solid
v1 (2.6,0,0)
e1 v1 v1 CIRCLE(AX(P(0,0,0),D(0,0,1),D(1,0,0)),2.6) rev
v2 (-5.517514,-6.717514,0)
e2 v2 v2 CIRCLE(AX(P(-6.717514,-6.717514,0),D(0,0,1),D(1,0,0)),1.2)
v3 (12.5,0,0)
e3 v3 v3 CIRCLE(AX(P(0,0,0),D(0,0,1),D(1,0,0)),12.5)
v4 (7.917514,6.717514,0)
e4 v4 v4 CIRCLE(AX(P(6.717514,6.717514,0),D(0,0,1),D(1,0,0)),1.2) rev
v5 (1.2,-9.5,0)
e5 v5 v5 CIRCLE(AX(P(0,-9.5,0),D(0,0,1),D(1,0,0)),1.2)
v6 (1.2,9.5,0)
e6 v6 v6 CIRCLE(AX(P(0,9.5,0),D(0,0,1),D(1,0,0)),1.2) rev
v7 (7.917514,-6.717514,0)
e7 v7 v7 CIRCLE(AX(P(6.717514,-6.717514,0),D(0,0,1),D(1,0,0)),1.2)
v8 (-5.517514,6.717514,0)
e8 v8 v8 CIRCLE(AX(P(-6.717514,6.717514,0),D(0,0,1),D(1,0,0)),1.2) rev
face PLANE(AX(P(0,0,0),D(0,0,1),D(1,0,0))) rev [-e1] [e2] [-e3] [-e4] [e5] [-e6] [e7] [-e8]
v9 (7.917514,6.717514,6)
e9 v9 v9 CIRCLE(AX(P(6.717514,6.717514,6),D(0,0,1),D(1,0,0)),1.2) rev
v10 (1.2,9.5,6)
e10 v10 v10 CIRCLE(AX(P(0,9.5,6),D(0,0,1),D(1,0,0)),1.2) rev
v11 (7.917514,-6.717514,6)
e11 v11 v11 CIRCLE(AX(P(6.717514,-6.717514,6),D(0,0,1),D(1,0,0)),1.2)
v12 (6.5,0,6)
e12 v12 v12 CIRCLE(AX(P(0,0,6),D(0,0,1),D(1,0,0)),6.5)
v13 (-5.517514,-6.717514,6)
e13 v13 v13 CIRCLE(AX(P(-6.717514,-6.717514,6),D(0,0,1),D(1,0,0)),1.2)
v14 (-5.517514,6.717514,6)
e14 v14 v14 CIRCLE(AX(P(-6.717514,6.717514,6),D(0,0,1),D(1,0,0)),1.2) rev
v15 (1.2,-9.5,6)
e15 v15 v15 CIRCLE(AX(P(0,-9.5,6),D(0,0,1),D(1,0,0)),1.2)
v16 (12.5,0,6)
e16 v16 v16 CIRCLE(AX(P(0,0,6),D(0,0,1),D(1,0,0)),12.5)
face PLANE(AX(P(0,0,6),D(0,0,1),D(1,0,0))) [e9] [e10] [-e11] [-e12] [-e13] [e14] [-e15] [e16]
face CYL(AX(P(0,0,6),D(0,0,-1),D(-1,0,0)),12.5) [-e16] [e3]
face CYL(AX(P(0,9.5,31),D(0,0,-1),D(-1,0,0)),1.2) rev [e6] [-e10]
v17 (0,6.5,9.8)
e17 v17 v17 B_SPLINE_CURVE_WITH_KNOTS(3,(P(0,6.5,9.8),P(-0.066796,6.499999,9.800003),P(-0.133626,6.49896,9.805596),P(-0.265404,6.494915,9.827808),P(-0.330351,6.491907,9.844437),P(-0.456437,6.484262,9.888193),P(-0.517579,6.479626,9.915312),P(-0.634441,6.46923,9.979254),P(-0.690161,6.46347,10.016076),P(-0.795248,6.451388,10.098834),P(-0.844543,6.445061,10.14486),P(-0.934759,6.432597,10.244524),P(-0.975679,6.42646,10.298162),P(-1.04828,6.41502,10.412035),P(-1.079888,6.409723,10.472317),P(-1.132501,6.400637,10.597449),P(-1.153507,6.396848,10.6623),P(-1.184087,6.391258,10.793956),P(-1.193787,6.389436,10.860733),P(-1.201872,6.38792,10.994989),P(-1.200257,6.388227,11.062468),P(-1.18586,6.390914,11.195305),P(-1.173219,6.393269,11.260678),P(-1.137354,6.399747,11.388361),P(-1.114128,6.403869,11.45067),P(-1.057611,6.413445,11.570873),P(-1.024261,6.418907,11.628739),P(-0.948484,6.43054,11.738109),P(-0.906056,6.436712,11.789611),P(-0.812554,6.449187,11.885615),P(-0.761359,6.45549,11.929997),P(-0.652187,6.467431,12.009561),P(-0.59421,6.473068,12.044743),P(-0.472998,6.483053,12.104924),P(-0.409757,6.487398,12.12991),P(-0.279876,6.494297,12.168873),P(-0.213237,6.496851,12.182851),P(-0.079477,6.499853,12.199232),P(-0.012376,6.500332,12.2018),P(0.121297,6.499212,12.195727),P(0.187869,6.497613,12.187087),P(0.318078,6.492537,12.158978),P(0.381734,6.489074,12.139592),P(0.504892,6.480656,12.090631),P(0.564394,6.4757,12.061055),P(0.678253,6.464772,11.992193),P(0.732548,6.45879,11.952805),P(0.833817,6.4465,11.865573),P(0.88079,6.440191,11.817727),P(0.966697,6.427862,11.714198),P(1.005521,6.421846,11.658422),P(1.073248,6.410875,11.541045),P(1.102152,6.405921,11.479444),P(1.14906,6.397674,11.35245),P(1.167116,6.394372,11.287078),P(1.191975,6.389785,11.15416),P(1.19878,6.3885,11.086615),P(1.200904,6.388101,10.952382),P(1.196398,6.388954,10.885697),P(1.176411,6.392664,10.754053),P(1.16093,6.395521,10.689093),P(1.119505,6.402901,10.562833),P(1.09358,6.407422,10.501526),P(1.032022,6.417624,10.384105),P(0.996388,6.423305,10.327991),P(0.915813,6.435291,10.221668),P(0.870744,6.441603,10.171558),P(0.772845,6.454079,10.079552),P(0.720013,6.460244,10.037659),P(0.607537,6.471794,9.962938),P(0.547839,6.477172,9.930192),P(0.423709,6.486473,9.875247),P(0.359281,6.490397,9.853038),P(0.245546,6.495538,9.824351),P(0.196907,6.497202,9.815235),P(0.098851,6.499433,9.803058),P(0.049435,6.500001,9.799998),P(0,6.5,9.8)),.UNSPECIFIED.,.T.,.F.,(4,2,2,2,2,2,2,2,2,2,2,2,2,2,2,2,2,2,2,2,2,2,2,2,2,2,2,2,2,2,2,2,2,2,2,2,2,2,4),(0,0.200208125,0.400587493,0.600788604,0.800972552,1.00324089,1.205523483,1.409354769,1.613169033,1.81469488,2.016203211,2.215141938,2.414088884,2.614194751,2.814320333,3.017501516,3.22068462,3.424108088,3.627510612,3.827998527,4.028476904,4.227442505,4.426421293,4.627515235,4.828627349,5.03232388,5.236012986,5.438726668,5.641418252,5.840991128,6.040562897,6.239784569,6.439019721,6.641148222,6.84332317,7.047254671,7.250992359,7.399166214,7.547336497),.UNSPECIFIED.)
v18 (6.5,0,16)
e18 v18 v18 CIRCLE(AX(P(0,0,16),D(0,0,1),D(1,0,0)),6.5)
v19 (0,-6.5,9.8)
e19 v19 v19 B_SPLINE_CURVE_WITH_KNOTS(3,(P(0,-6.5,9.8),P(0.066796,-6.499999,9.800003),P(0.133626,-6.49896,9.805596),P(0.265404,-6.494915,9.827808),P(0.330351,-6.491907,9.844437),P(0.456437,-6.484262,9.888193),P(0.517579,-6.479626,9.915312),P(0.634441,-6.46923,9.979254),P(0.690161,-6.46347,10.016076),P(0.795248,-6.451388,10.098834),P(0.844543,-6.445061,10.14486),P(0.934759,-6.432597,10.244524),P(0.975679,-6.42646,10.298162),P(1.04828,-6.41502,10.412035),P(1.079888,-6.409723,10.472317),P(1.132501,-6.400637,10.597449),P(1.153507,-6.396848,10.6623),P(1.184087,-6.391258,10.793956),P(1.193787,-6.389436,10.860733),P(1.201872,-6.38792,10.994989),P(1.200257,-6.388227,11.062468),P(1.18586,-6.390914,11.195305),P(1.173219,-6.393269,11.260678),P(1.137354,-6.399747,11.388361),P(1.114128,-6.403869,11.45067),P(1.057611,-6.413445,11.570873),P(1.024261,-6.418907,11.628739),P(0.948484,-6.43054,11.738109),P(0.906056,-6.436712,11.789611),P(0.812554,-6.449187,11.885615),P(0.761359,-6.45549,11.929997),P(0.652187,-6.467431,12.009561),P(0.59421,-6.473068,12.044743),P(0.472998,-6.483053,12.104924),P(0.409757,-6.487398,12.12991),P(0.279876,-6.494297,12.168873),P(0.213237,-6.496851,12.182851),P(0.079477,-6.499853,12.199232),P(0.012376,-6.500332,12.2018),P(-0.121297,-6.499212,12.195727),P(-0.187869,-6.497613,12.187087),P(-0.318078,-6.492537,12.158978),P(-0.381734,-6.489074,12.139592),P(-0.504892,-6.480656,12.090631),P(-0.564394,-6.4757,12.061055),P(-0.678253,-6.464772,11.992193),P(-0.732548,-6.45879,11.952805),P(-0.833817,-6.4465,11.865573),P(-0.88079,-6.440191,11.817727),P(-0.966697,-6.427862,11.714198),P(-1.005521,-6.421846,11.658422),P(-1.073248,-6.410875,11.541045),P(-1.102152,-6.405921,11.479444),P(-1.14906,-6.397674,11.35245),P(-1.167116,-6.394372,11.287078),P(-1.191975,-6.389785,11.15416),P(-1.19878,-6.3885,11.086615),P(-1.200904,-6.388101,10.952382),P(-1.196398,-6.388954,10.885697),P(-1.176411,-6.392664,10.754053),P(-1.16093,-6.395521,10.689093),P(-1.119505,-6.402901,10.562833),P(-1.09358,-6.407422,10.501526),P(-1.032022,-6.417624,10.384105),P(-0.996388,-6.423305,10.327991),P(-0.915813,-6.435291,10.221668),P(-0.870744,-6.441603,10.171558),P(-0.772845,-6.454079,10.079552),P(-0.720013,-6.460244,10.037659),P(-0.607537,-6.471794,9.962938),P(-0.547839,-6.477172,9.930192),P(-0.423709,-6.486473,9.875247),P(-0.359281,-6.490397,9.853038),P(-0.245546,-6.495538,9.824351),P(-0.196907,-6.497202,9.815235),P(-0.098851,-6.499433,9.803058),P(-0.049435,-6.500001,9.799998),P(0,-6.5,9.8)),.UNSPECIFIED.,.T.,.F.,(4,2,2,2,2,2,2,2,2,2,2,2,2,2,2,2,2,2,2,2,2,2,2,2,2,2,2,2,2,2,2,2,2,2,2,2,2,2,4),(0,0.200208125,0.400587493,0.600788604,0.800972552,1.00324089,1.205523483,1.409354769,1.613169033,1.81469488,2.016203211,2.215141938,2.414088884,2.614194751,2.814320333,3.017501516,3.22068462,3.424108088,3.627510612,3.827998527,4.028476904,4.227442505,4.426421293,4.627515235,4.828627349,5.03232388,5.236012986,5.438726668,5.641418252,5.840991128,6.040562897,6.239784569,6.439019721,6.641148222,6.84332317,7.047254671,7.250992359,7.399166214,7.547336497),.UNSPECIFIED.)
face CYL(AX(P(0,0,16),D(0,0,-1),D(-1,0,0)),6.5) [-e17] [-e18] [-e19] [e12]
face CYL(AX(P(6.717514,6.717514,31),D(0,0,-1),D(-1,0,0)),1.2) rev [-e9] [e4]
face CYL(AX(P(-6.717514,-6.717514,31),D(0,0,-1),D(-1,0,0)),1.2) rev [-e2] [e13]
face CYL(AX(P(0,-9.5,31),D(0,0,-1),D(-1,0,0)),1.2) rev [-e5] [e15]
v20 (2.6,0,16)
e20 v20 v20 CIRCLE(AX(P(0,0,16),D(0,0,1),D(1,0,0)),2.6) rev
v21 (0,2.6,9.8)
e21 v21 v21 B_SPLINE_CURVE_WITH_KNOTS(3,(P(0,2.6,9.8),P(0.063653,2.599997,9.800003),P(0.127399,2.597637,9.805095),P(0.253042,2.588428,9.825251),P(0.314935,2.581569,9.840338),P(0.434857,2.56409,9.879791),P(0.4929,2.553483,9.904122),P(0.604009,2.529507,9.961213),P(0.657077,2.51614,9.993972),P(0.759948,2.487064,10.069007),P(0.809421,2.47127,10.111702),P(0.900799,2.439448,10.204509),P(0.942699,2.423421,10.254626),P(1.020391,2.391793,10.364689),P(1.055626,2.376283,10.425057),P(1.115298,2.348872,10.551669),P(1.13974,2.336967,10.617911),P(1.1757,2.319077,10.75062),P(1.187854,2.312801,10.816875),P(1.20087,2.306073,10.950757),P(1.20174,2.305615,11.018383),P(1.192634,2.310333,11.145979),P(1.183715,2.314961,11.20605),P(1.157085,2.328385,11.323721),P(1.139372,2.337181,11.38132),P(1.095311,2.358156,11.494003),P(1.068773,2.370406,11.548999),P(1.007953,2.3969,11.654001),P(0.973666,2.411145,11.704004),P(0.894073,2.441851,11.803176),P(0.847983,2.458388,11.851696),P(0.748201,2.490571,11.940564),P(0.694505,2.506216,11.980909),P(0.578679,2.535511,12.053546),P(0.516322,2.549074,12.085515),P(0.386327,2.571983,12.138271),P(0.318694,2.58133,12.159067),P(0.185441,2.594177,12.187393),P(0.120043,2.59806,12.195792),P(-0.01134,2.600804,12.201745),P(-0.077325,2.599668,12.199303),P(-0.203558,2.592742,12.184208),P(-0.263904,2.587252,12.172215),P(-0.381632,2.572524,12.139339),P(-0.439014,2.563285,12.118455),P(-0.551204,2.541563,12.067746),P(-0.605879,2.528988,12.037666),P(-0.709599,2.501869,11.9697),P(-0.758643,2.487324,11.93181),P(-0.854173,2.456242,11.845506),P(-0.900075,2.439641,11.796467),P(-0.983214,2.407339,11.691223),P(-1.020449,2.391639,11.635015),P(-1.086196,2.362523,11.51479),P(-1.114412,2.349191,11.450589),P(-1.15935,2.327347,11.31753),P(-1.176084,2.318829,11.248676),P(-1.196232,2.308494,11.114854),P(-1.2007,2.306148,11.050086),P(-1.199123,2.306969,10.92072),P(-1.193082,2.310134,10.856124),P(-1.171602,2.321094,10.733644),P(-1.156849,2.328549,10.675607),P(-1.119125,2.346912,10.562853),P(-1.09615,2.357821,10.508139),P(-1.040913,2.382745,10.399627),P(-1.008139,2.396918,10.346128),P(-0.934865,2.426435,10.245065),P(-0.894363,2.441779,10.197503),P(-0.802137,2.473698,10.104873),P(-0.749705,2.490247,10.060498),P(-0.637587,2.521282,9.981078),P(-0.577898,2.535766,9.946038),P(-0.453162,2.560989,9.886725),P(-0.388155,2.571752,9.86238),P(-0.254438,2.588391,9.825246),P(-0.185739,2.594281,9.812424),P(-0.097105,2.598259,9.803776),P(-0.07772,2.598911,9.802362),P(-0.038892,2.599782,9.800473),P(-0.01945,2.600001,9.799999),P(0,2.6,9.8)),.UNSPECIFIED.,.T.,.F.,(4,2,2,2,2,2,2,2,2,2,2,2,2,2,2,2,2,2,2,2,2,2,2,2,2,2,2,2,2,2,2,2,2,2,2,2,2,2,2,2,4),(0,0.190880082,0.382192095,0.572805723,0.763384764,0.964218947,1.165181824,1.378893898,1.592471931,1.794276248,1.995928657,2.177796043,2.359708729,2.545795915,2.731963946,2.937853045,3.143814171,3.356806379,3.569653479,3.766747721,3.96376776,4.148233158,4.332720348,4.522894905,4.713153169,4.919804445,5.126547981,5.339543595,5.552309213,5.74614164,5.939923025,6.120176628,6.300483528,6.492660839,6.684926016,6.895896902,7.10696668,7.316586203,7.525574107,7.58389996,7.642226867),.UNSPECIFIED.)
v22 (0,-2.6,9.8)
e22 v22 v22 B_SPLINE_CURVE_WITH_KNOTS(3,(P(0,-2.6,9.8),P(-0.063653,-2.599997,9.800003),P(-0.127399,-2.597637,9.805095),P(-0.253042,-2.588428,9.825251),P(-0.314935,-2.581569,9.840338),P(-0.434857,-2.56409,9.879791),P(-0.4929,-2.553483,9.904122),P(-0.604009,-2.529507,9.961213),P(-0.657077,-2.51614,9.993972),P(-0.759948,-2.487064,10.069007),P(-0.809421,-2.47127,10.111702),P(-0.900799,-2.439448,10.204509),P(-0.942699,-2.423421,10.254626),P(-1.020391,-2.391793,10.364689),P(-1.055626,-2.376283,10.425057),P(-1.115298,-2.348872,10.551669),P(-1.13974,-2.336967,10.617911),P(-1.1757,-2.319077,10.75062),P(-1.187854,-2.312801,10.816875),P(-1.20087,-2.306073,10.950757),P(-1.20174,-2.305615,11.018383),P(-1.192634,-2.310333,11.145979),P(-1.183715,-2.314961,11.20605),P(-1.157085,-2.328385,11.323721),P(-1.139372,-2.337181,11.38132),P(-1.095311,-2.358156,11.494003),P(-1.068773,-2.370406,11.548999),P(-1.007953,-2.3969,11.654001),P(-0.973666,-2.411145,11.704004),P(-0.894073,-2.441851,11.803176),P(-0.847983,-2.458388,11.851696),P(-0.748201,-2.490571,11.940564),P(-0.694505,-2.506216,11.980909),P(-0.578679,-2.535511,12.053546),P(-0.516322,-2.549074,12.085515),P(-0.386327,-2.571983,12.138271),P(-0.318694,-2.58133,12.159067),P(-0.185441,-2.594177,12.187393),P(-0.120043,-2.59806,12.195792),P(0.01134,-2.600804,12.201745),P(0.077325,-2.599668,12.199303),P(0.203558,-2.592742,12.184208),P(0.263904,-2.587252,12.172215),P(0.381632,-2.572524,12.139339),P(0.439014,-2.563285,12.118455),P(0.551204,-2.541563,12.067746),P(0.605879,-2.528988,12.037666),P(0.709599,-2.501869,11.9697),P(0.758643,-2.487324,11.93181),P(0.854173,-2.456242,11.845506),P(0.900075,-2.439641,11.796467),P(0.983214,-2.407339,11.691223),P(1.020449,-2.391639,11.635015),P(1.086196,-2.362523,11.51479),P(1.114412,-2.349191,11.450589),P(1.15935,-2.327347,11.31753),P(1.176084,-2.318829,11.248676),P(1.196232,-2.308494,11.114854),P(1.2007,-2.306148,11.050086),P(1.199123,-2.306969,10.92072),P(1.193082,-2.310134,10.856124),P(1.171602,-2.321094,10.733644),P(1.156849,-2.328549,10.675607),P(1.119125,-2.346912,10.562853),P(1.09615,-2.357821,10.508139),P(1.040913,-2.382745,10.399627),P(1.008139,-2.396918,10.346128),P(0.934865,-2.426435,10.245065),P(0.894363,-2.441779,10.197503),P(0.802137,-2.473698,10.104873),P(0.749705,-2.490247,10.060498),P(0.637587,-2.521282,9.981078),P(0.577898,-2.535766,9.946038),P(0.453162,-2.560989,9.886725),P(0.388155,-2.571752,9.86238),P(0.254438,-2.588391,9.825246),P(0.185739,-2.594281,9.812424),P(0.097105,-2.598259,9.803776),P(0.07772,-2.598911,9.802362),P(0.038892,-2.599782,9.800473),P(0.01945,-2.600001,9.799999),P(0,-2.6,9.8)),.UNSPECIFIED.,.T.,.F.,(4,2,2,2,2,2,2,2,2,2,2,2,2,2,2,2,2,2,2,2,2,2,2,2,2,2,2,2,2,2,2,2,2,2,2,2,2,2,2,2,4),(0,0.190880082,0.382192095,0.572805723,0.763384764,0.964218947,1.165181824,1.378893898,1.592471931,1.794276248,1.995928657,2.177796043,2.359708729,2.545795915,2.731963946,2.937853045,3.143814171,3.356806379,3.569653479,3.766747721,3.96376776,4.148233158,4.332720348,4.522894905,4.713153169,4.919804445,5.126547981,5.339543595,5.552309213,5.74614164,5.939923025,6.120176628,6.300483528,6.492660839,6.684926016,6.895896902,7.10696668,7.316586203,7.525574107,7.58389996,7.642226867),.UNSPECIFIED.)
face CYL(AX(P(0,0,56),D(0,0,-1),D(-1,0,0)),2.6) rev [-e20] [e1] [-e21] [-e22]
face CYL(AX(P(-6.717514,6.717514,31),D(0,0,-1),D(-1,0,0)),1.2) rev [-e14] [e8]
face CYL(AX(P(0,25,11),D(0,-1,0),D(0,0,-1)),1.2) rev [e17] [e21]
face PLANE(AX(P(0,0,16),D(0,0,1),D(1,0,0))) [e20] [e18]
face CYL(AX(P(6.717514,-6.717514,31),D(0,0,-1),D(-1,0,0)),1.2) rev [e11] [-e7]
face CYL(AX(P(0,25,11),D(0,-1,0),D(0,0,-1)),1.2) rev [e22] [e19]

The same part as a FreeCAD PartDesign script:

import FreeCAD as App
import Part
import Sketcher

V = App.Vector

doc = App.newDocument("Part")
params = doc.addObject("Spreadsheet::Sheet", "Params")
for row, (alias, value) in enumerate([
    ("sketch1_diameter", "25 mm"),
    ("pad1_length", "6 mm"),
    ("sketch2_diameter", "13 mm"),
    ("sketch2_diameter2", "5 mm"),
    ("pad2_length", "10 mm"),
    ("sketch3_diameter", "2.4 mm"),
    ("sketch4_diameter", "2.4 mm"),
    ("pocket2_length", "50 mm"),
    ("sketch5_diameter", "5.2 mm"),
    ("sketch6_diameter", "2.4 mm"),
    ("pocket4_length", "50 mm"),
    ("sketch7_diameter", "2.4 mm"),
    ("pocket5_length", "50 mm"),
], start=1):
    params.set(f"A{row}", alias)
    params.set(f"B{row}", "=" + value)
    params.setAlias(f"B{row}", alias)

body = doc.addObject("PartDesign::Body", "Body")

# Sketch on XY plane
sketch1 = body.newObject("Sketcher::SketchObject", "Sketch")
sketch1.AttachmentSupport = (doc.getObject("XY_Plane"), [""])
sketch1.MapMode = "FlatFace"
sketch1.addGeometry(Part.Circle(V(0, 0, 0), V(0, 0, 1), 12), False)
sketch1.addConstraint([
    Sketcher.Constraint("Coincident", 0, 3, -1, 1),
    Sketcher.Constraint("Diameter", 0, 25.0),
])
sketch1.setExpression("Constraints[1]", "Params.sketch1_diameter")
pad1 = body.newObject("PartDesign::Pad", "Pad")
pad1.Profile = sketch1
pad1.setExpression("Length", "Params.pad1_length")

# Sketch on XY plane
sketch2 = body.newObject("Sketcher::SketchObject", "Sketch001")
sketch2.AttachmentSupport = (doc.getObject("XY_Plane"), [""])
sketch2.MapMode = "FlatFace"
sketch2.AttachmentOffset = App.Placement(V(0, 0, 6), App.Rotation())
sketch2.addGeometry([
    Part.Circle(V(0, 0, 0), V(0, 0, 1), 6.5),
    Part.Circle(V(0, 0, 0), V(0, 0, 1), 2.5),
], False)
sketch2.addConstraint([
    Sketcher.Constraint("Coincident", 0, 3, -1, 1),
    Sketcher.Constraint("Coincident", 1, 3, -1, 1),
    Sketcher.Constraint("Diameter", 0, 13.0),
    Sketcher.Constraint("Diameter", 1, 5.0),
])
sketch2.setExpression("Constraints[2]", "Params.sketch2_diameter")
sketch2.setExpression("Constraints[3]", "Params.sketch2_diameter2")
pad2 = body.newObject("PartDesign::Pad", "Pad001")
pad2.Profile = sketch2
pad2.setExpression("Length", "Params.pad2_length")

# Sketch on XZ plane
sketch3 = body.newObject("Sketcher::SketchObject", "Sketch002")
sketch3.AttachmentSupport = (doc.getObject("XZ_Plane"), [""])
sketch3.MapMode = "FlatFace"
sketch3.addGeometry(Part.Circle(V(0, 11, 0), V(0, 0, 1), 1.2), False)
sketch3.addConstraint([
    Sketcher.Constraint("PointOnObject", 0, 3, -2),
    Sketcher.Constraint("Diameter", 0, 2.4),
    Sketcher.Constraint("DistanceY", -1, 1, 0, 3, 11.0),
])
sketch3.setExpression("Constraints[1]", "Params.sketch3_diameter")
pocket1 = body.newObject("PartDesign::Pocket", "Pocket")
pocket1.Profile = sketch3
pocket1.Type = "ThroughAll"
pocket1.Midplane = True

# Sketch on XY plane
sketch4 = body.newObject("Sketcher::SketchObject", "Sketch003")
sketch4.AttachmentSupport = (doc.getObject("XY_Plane"), [""])
sketch4.MapMode = "FlatFace"
sketch4.AttachmentOffset = App.Placement(V(0, 0, 6), App.Rotation())
sketch4.addGeometry(Part.Circle(V(0, 9.5, 0), V(0, 0, 1), 1.2), False)
sketch4.addConstraint([
    Sketcher.Constraint("PointOnObject", 0, 3, -2),
    Sketcher.Constraint("Diameter", 0, 2.4),
    Sketcher.Constraint("DistanceY", -1, 1, 0, 3, 9.5),
])
sketch4.setExpression("Constraints[1]", "Params.sketch4_diameter")
pocket2 = body.newObject("PartDesign::Pocket", "Pocket001")
pocket2.Profile = sketch4
pocket2.setExpression("Length", "Params.pocket2_length")
pocket2.Midplane = True
doc.recompute()

polarpattern = body.newObject("PartDesign::PolarPattern", "PolarPattern")
polarpattern.Originals = [pocket2]
polarpattern.Axis = (doc.getObject("Z_Axis"), [""])
polarpattern.Angle = 45
polarpattern.Occurrences = 2
body.Tip = polarpattern

# Sketch on XY plane
sketch5 = body.newObject("Sketcher::SketchObject", "Sketch004")
sketch5.AttachmentSupport = (doc.getObject("XY_Plane"), [""])
sketch5.MapMode = "FlatFace"
sketch5.AttachmentOffset = App.Placement(V(0, 0, 6), App.Rotation())
sketch5.addGeometry(Part.Circle(V(0, 0, 0), V(0, 0, 1), 2.6), False)
sketch5.addConstraint([
    Sketcher.Constraint("Coincident", 0, 3, -1, 1),
    Sketcher.Constraint("Diameter", 0, 5.2),
])
sketch5.setExpression("Constraints[1]", "Params.sketch5_diameter")
pocket3 = body.newObject("PartDesign::Pocket", "Pocket002")
pocket3.Profile = sketch5
pocket3.Type = "ThroughAll"
pocket3.Midplane = True
doc.recompute()

polarpattern2 = body.newObject("PartDesign::PolarPattern", "PolarPattern001")
polarpattern2.Originals = [pocket2]
polarpattern2.Axis = (doc.getObject("Z_Axis"), [""])
polarpattern2.Angle = 315
polarpattern2.Occurrences = 2
body.Tip = polarpattern2
doc.recompute()

mirrored = body.newObject("PartDesign::Mirrored", "Mirrored")
mirrored.Originals = [pocket2]
mirrored.MirrorPlane = (doc.getObject("XZ_Plane"), [""])
body.Tip = mirrored

# Sketch on XY plane
sketch6 = body.newObject("Sketcher::SketchObject", "Sketch005")
sketch6.AttachmentSupport = (doc.getObject("XY_Plane"), [""])
sketch6.MapMode = "FlatFace"
sketch6.AttachmentOffset = App.Placement(V(0, 0, 6), App.Rotation())
sketch6.addGeometry(Part.Circle(V(6.7, -6.7, 0), V(0, 0, 1), 1.2), False)
sketch6.addConstraint([
    Sketcher.Constraint("Diameter", 0, 2.4),
    Sketcher.Constraint("DistanceX", -1, 1, 0, 3, 6.717514),
    Sketcher.Constraint("DistanceY", 0, 3, -1, 1, 6.717514),
])
sketch6.setExpression("Constraints[0]", "Params.sketch6_diameter")
pocket4 = body.newObject("PartDesign::Pocket", "Pocket003")
pocket4.Profile = sketch6
pocket4.setExpression("Length", "Params.pocket4_length")
pocket4.Midplane = True

# Sketch on XY plane
sketch7 = body.newObject("Sketcher::SketchObject", "Sketch006")
sketch7.AttachmentSupport = (doc.getObject("XY_Plane"), [""])
sketch7.MapMode = "FlatFace"
sketch7.AttachmentOffset = App.Placement(V(0, 0, 6), App.Rotation())
sketch7.addGeometry(Part.Circle(V(-6.7, -6.7, 0), V(0, 0, 1), 1.2), False)
sketch7.addConstraint([
    Sketcher.Constraint("Diameter", 0, 2.4),
    Sketcher.Constraint("DistanceX", 0, 3, -1, 1, 6.717514),
    Sketcher.Constraint("DistanceY", 0, 3, -1, 1, 6.717514),
])
sketch7.setExpression("Constraints[0]", "Params.sketch7_diameter")
pocket5 = body.newObject("PartDesign::Pocket", "Pocket004")
pocket5.Profile = sketch7
pocket5.setExpression("Length", "Params.pocket5_length")
pocket5.Midplane = True

doc.recompute()
